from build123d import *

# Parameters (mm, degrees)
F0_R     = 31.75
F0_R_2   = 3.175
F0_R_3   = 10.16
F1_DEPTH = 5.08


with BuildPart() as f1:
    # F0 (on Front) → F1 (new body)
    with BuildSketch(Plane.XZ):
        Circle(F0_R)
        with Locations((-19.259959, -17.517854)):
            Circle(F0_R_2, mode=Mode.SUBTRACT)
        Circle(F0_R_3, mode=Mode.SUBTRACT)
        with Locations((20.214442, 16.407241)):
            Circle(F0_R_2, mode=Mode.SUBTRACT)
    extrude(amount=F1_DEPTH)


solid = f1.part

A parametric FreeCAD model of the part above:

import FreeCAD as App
import Part
import Sketcher
Q = App.Units.Quantity

doc = App.newDocument("Part")
params = doc.addObject("Spreadsheet::Sheet", "Params")
for row, (alias, value) in enumerate([
    ("sketch1_diameter", "2.5 in"),
    ("sketch1_diameter2", "0.8 in"),
    ("sketch1_diameter3", "0.25 in"),
    ("pad1_length", "0.2 in"),
], start=1):
    params.set(f"A{row}", alias)
    params.set(f"B{row}", "=" + value)
    params.setAlias(f"B{row}", alias)

body = doc.addObject("PartDesign::Body", "Body")

sketch1 = body.newObject("Sketcher::SketchObject", "Sketch")
sketch1.AttachmentSupport = (doc.getObject("XZ_Plane"), [""])
sketch1.MapMode = "FlatFace"
sketch1.addGeometry(Part.Circle(App.Vector(0, 0, 0), App.Vector(0, 0, 1), 31.8), False)
sketch1.addGeometry(Part.Circle(App.Vector(-19.3, -17.5, 0), App.Vector(0, 0, 1), 3.2), False)
sketch1.addGeometry(Part.Circle(App.Vector(0, 0, 0), App.Vector(0, 0, 1), 10.2), False)
sketch1.addGeometry(Part.Circle(App.Vector(20.2, 16.4, 0), App.Vector(0, 0, 1), 3.2), False)
sketch1.addConstraint(Sketcher.Constraint("Coincident", 0, 3, -1, 1))
sketch1.addConstraint(Sketcher.Constraint("Coincident", 2, 3, -1, 1))
sketch1.addConstraint(Sketcher.Constraint("Equal", 1, 3))
sketch1.addConstraint(Sketcher.Constraint("Diameter", 0, Q("2.5 in")))
sketch1.addConstraint(Sketcher.Constraint("Diameter", 2, Q("0.8 in")))
sketch1.addConstraint(Sketcher.Constraint("Diameter", 1, Q("0.25 in")))
sketch1.addConstraint(Sketcher.Constraint("DistanceX", 1, 3, 3, 3, Q("39.474401 mm")))
sketch1.addConstraint(Sketcher.Constraint("DistanceX", 1, 3, -1, 1, Q("19.259959 mm")))
sketch1.addConstraint(Sketcher.Constraint("DistanceY", -1, 1, 3, 3, Q("16.407241 mm")))
sketch1.addConstraint(Sketcher.Constraint("DistanceY", 1, 3, -1, 1, Q("17.517854 mm")))
sketch1.setExpression("Constraints[3]", "Params.sketch1_diameter")
sketch1.setExpression("Constraints[4]", "Params.sketch1_diameter2")
sketch1.setExpression("Constraints[5]", "Params.sketch1_diameter3")
pad1 = body.newObject("PartDesign::Pad", "Pad")
pad1.Profile = sketch1
pad1.setExpression("Length", "Params.pad1_length")

doc.recompute()
